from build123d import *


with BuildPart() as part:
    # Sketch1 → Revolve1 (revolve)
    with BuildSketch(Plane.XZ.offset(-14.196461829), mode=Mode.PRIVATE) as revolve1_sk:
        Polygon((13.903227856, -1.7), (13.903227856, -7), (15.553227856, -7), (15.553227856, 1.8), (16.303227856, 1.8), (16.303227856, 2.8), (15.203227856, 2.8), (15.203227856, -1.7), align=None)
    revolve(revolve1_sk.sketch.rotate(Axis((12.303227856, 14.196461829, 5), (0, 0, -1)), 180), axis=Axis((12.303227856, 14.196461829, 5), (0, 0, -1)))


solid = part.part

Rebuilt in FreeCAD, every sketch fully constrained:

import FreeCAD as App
import Part
import Sketcher


def add_polygon(sketch, points):
    """Adds a closed chain of lines whose ends are joined by coincident constraints."""
    first, n = sketch.GeometryCount, len(points)
    for a, b in zip(points, points[1:] + points[:1]):
        sketch.addGeometry(Part.LineSegment(App.Vector(*a, 0), App.Vector(*b, 0)), False)
    for i in range(n):
        sketch.addConstraint(Sketcher.Constraint("Coincident", first + i, 2, first + (i + 1) % n, 1))

doc = App.newDocument("Part")
body = doc.addObject("PartDesign::Body", "Body")

sketch1 = body.newObject("Sketcher::SketchObject", "Sketch")
sketch1.AttachmentSupport = (doc.getObject("XZ_Plane"), [""])
sketch1.MapMode = "FlatFace"
sketch1.AttachmentOffset = App.Placement(App.Vector(0, 0, -14.196462), App.Rotation())
add_polygon(sketch1, [(13.9, -1.7), (13.9, -7), (15.6, -7), (15.6, 1.8), (16.3, 1.8), (16.3, 2.8), (15.2, 2.8), (15.2, -1.7)])
sketch1.addGeometry(Part.LineSegment(App.Vector(12.3, 2.8, 0), App.Vector(12.3, -7, 0)), True)
sketch1.addConstraint(Sketcher.Constraint("Vertical", 0))
sketch1.addConstraint(Sketcher.Constraint("Horizontal", 1))
sketch1.addConstraint(Sketcher.Constraint("Vertical", 2))
sketch1.addConstraint(Sketcher.Constraint("Horizontal", 3))
sketch1.addConstraint(Sketcher.Constraint("Vertical", 4))
sketch1.addConstraint(Sketcher.Constraint("Horizontal", 5))
sketch1.addConstraint(Sketcher.Constraint("Vertical", 6))
sketch1.addConstraint(Sketcher.Constraint("Horizontal", 7))
sketch1.addConstraint(Sketcher.Constraint("Vertical", 8))
sketch1.addConstraint(Sketcher.Constraint("Horizontal", 5, 2, 8, 1))
sketch1.addConstraint(Sketcher.Constraint("Horizontal", 1, 2, 8, 2))
sketch1.addConstraint(Sketcher.Constraint("DistanceY", 4, 1, 4, 2, 1.0))
sketch1.addConstraint(Sketcher.Constraint("DistanceX", 5, 2, 5, 1, 1.1))
sketch1.addConstraint(Sketcher.Constraint("DistanceX", 7, 2, 7, 1, 1.3))
sketch1.addConstraint(Sketcher.Constraint("DistanceY", 0, 2, 0, 1, 5.3))
sketch1.addConstraint(Sketcher.Constraint("DistanceY", 2, 1, 2, 2, 8.8))
sketch1.addConstraint(Sketcher.Constraint("DistanceY", 0, 2, -1, 1, 7.0))
sketch1.addConstraint(Sketcher.Constraint("DistanceX", 8, 1, 4, 2, 4.0))
sketch1.addConstraint(Sketcher.Constraint("DistanceX", 1, 1, 1, 2, 1.65))
sketch1.addConstraint(Sketcher.Constraint("DistanceX", -1, 1, 0, 2, 13.903228))
revolution = body.newObject("PartDesign::Revolution", "Revolution")
revolution.Profile = sketch1
revolution.ReferenceAxis = (sketch1, ["Axis0"])
revolution.Angle = 360

doc.recompute()
